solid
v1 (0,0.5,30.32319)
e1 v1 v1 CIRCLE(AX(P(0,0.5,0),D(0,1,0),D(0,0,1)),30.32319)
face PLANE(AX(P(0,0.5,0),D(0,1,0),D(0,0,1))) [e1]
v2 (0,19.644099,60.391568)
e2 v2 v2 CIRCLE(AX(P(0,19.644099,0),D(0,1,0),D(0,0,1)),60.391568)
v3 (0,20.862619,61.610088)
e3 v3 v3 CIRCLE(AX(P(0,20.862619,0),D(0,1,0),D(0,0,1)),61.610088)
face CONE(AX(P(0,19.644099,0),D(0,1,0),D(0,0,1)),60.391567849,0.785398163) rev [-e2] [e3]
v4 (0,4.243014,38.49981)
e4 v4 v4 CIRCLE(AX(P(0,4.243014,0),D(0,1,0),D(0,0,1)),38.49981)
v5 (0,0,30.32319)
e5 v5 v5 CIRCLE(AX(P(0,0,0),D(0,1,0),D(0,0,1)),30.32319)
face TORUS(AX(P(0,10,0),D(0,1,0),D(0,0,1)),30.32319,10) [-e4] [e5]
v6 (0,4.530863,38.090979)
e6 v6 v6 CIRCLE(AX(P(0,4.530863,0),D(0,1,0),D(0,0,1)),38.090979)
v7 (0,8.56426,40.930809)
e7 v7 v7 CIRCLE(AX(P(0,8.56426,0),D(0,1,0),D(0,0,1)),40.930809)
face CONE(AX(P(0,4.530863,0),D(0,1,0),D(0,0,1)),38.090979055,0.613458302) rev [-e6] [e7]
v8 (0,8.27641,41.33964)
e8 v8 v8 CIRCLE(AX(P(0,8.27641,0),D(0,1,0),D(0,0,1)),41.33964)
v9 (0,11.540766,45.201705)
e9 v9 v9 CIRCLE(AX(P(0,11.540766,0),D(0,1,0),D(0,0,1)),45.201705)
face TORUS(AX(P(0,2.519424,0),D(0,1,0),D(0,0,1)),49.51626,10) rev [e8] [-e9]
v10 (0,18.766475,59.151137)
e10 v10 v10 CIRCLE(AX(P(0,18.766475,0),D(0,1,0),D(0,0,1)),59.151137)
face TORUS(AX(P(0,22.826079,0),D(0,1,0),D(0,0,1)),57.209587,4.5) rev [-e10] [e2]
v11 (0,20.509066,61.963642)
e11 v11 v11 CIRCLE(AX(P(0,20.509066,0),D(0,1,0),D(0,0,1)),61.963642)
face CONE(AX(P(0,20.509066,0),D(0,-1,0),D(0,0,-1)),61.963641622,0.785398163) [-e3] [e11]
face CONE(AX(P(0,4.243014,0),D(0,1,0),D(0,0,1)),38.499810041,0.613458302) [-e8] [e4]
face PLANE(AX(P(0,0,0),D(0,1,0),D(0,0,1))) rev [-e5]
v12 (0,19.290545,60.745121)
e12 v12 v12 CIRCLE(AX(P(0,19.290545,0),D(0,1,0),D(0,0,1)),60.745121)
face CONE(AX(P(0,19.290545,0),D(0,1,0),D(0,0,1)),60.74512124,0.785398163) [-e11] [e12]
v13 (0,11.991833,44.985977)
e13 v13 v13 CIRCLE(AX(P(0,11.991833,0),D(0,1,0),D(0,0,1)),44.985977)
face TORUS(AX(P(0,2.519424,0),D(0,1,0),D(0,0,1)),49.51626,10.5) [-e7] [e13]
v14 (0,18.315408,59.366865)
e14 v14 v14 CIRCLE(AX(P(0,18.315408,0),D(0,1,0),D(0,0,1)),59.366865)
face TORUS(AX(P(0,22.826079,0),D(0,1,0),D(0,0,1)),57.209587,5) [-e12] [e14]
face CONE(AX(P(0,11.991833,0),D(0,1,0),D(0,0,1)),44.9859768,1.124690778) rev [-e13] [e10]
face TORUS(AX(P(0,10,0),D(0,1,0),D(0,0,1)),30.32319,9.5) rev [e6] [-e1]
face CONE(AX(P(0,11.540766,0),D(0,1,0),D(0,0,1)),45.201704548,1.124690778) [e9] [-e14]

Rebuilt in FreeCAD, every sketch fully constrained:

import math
import FreeCAD as App
import Part
import Sketcher
from FreeCAD import Vector
Q = App.Units.Quantity

doc = App.newDocument("Part")
params = doc.addObject("Spreadsheet::Sheet", "Params")
for row, (alias, value) in enumerate([
    ("sketch1_radius", "5 mm"),
    ("sketch1_radius2", "10 mm"),
    ("sketch1_radius3", "9.5 mm"),
    ("revolution_angle", "360 deg"),
], start=1):
    params.set(f"A{row}", alias)
    params.set(f"B{row}", "=" + value)
    params.setAlias(f"B{row}", alias)

body = doc.addObject("PartDesign::Body", "Body")

sketch1 = doc.addObject("Sketcher::SketchObject", "Sketch")
body.addObject(sketch1)
sketch1.AttachmentSupport = (doc.XY_Plane, [""])
sketch1.MapMode = "FlatFace"
sketch1.addGeometry([
    Part.LineSegment(Vector(-30.32, 0, 0), Vector(0, 0, 0)),
    Part.LineSegment(Vector(0, 0, 0), Vector(0, 0.5, 0)),
    Part.LineSegment(Vector(0, 0.5, 0), Vector(-30.32, 0.5, 0)),
    Part.ArcOfCircle(Part.Circle(Vector(-30.32, 10, 0), Vector(0, 0, 1), 9.5), math.radians(-145), math.radians(-90)),
    Part.LineSegment(Vector(-38.09, 4.53, 0), Vector(-40.93, 8.56, 0)),
    Part.ArcOfCircle(Part.Circle(Vector(-49.52, 2.52, 0), Vector(0, 0, 1), 10.5), math.radians(35), math.radians(64)),
    Part.LineSegment(Vector(-44.99, 11.99, 0), Vector(-59.15, 18.77, 0)),
    Part.ArcOfCircle(Part.Circle(Vector(-57.21, 22.83, 0), Vector(0, 0, 1), 4.5), math.radians(-135), math.radians(-115.56)),
    Part.LineSegment(Vector(-60.39, 19.64, 0), Vector(-61.61, 20.86, 0)),
    Part.LineSegment(Vector(-61.61, 20.86, 0), Vector(-61.96, 20.51, 0)),
    Part.LineSegment(Vector(-61.96, 20.51, 0), Vector(-60.75, 19.29, 0)),
    Part.ArcOfCircle(Part.Circle(Vector(-57.21, 22.83, 0), Vector(0, 0, 1), 5), math.radians(-135), math.radians(-115.56)),
    Part.LineSegment(Vector(-59.37, 18.32, 0), Vector(-45.2, 11.54, 0)),
    Part.ArcOfCircle(Part.Circle(Vector(-49.52, 2.52, 0), Vector(0, 0, 1), 10), math.radians(35), math.radians(64)),
    Part.LineSegment(Vector(-41.34, 8.28, 0), Vector(-38.5, 4.24, 0)),
    Part.ArcOfCircle(Part.Circle(Vector(-30.32, 10, 0), Vector(0, 0, 1), 10), math.radians(-145), math.radians(-90)),
], False)
sketch1.addConstraint([
    Sketcher.Constraint("Coincident", 0, 2, 1, 1),
    Sketcher.Constraint("Coincident", 1, 2, 2, 1),
    Sketcher.Constraint("Tangent", 2, 2, 3, 2),
    Sketcher.Constraint("Tangent", 3, 1, 4, 1),
    Sketcher.Constraint("Tangent", 4, 2, 5, 1),
    Sketcher.Constraint("Tangent", 5, 2, 6, 1),
    Sketcher.Constraint("Tangent", 6, 2, 7, 2),
    Sketcher.Constraint("Tangent", 7, 1, 8, 1),
    Sketcher.Constraint("Coincident", 8, 2, 9, 1),
    Sketcher.Constraint("Coincident", 9, 2, 10, 1),
    Sketcher.Constraint("Tangent", 10, 2, 11, 1),
    Sketcher.Constraint("Tangent", 11, 2, 12, 1),
    Sketcher.Constraint("Tangent", 12, 2, 13, 2),
    Sketcher.Constraint("Tangent", 13, 1, 14, 1),
    Sketcher.Constraint("Tangent", 14, 2, 15, 1),
    Sketcher.Constraint("Tangent", 15, 2, 0, 1),
    Sketcher.Constraint("Horizontal", 0),
    Sketcher.Constraint("Vertical", 1),
    Sketcher.Constraint("Horizontal", 2),
    Sketcher.Constraint("Coincident", 0, 2, -1, 1),
    Sketcher.Constraint("Coincident", 11, 3, 7, 3),
    Sketcher.Constraint("Coincident", 13, 3, 5, 3),
    Sketcher.Constraint("Coincident", 15, 3, 3, 3),
    Sketcher.Constraint("Equal", 13, 15),
    Sketcher.Constraint("Perpendicular", 8, 9),
    Sketcher.Constraint("Perpendicular", 9, 10),
    Sketcher.Constraint("Parallel", 6, 12),
    Sketcher.Constraint("Parallel", 4, 14),
    Sketcher.Constraint("Radius", 11, 5.0),
    Sketcher.Constraint("Radius", 13, 10.0),
    Sketcher.Constraint("Radius", 3, 9.5),
    Sketcher.Constraint("Angle", 8, Q("135 deg")),
    Sketcher.Constraint("DistanceX", 4, 2, 14, 2, 2.430999),
    Sketcher.Constraint("DistanceX", 0, 1, 0, 2, 30.32319),
    Sketcher.Constraint("DistanceY", -1, 1, 7, 1, 19.644099),
    Sketcher.Constraint("DistanceX", 8, 2, 7, 3, 4.400501),
    Sketcher.Constraint("Distance", 4, 4.932841),
    Sketcher.Constraint("DistanceX", 8, 2, -1, 1, 61.610088),
])
sketch1.setExpression("Constraints[28]", "Params.sketch1_radius")
sketch1.setExpression("Constraints[29]", "Params.sketch1_radius2")
sketch1.setExpression("Constraints[30]", "Params.sketch1_radius3")
revolution = doc.addObject("PartDesign::Revolution", "Revolution")
body.addObject(revolution)
revolution.Profile = sketch1
revolution.ReferenceAxis = (sketch1, ["V_Axis"])
revolution.setExpression("Angle", "Params.revolution_angle")

doc.recompute()
